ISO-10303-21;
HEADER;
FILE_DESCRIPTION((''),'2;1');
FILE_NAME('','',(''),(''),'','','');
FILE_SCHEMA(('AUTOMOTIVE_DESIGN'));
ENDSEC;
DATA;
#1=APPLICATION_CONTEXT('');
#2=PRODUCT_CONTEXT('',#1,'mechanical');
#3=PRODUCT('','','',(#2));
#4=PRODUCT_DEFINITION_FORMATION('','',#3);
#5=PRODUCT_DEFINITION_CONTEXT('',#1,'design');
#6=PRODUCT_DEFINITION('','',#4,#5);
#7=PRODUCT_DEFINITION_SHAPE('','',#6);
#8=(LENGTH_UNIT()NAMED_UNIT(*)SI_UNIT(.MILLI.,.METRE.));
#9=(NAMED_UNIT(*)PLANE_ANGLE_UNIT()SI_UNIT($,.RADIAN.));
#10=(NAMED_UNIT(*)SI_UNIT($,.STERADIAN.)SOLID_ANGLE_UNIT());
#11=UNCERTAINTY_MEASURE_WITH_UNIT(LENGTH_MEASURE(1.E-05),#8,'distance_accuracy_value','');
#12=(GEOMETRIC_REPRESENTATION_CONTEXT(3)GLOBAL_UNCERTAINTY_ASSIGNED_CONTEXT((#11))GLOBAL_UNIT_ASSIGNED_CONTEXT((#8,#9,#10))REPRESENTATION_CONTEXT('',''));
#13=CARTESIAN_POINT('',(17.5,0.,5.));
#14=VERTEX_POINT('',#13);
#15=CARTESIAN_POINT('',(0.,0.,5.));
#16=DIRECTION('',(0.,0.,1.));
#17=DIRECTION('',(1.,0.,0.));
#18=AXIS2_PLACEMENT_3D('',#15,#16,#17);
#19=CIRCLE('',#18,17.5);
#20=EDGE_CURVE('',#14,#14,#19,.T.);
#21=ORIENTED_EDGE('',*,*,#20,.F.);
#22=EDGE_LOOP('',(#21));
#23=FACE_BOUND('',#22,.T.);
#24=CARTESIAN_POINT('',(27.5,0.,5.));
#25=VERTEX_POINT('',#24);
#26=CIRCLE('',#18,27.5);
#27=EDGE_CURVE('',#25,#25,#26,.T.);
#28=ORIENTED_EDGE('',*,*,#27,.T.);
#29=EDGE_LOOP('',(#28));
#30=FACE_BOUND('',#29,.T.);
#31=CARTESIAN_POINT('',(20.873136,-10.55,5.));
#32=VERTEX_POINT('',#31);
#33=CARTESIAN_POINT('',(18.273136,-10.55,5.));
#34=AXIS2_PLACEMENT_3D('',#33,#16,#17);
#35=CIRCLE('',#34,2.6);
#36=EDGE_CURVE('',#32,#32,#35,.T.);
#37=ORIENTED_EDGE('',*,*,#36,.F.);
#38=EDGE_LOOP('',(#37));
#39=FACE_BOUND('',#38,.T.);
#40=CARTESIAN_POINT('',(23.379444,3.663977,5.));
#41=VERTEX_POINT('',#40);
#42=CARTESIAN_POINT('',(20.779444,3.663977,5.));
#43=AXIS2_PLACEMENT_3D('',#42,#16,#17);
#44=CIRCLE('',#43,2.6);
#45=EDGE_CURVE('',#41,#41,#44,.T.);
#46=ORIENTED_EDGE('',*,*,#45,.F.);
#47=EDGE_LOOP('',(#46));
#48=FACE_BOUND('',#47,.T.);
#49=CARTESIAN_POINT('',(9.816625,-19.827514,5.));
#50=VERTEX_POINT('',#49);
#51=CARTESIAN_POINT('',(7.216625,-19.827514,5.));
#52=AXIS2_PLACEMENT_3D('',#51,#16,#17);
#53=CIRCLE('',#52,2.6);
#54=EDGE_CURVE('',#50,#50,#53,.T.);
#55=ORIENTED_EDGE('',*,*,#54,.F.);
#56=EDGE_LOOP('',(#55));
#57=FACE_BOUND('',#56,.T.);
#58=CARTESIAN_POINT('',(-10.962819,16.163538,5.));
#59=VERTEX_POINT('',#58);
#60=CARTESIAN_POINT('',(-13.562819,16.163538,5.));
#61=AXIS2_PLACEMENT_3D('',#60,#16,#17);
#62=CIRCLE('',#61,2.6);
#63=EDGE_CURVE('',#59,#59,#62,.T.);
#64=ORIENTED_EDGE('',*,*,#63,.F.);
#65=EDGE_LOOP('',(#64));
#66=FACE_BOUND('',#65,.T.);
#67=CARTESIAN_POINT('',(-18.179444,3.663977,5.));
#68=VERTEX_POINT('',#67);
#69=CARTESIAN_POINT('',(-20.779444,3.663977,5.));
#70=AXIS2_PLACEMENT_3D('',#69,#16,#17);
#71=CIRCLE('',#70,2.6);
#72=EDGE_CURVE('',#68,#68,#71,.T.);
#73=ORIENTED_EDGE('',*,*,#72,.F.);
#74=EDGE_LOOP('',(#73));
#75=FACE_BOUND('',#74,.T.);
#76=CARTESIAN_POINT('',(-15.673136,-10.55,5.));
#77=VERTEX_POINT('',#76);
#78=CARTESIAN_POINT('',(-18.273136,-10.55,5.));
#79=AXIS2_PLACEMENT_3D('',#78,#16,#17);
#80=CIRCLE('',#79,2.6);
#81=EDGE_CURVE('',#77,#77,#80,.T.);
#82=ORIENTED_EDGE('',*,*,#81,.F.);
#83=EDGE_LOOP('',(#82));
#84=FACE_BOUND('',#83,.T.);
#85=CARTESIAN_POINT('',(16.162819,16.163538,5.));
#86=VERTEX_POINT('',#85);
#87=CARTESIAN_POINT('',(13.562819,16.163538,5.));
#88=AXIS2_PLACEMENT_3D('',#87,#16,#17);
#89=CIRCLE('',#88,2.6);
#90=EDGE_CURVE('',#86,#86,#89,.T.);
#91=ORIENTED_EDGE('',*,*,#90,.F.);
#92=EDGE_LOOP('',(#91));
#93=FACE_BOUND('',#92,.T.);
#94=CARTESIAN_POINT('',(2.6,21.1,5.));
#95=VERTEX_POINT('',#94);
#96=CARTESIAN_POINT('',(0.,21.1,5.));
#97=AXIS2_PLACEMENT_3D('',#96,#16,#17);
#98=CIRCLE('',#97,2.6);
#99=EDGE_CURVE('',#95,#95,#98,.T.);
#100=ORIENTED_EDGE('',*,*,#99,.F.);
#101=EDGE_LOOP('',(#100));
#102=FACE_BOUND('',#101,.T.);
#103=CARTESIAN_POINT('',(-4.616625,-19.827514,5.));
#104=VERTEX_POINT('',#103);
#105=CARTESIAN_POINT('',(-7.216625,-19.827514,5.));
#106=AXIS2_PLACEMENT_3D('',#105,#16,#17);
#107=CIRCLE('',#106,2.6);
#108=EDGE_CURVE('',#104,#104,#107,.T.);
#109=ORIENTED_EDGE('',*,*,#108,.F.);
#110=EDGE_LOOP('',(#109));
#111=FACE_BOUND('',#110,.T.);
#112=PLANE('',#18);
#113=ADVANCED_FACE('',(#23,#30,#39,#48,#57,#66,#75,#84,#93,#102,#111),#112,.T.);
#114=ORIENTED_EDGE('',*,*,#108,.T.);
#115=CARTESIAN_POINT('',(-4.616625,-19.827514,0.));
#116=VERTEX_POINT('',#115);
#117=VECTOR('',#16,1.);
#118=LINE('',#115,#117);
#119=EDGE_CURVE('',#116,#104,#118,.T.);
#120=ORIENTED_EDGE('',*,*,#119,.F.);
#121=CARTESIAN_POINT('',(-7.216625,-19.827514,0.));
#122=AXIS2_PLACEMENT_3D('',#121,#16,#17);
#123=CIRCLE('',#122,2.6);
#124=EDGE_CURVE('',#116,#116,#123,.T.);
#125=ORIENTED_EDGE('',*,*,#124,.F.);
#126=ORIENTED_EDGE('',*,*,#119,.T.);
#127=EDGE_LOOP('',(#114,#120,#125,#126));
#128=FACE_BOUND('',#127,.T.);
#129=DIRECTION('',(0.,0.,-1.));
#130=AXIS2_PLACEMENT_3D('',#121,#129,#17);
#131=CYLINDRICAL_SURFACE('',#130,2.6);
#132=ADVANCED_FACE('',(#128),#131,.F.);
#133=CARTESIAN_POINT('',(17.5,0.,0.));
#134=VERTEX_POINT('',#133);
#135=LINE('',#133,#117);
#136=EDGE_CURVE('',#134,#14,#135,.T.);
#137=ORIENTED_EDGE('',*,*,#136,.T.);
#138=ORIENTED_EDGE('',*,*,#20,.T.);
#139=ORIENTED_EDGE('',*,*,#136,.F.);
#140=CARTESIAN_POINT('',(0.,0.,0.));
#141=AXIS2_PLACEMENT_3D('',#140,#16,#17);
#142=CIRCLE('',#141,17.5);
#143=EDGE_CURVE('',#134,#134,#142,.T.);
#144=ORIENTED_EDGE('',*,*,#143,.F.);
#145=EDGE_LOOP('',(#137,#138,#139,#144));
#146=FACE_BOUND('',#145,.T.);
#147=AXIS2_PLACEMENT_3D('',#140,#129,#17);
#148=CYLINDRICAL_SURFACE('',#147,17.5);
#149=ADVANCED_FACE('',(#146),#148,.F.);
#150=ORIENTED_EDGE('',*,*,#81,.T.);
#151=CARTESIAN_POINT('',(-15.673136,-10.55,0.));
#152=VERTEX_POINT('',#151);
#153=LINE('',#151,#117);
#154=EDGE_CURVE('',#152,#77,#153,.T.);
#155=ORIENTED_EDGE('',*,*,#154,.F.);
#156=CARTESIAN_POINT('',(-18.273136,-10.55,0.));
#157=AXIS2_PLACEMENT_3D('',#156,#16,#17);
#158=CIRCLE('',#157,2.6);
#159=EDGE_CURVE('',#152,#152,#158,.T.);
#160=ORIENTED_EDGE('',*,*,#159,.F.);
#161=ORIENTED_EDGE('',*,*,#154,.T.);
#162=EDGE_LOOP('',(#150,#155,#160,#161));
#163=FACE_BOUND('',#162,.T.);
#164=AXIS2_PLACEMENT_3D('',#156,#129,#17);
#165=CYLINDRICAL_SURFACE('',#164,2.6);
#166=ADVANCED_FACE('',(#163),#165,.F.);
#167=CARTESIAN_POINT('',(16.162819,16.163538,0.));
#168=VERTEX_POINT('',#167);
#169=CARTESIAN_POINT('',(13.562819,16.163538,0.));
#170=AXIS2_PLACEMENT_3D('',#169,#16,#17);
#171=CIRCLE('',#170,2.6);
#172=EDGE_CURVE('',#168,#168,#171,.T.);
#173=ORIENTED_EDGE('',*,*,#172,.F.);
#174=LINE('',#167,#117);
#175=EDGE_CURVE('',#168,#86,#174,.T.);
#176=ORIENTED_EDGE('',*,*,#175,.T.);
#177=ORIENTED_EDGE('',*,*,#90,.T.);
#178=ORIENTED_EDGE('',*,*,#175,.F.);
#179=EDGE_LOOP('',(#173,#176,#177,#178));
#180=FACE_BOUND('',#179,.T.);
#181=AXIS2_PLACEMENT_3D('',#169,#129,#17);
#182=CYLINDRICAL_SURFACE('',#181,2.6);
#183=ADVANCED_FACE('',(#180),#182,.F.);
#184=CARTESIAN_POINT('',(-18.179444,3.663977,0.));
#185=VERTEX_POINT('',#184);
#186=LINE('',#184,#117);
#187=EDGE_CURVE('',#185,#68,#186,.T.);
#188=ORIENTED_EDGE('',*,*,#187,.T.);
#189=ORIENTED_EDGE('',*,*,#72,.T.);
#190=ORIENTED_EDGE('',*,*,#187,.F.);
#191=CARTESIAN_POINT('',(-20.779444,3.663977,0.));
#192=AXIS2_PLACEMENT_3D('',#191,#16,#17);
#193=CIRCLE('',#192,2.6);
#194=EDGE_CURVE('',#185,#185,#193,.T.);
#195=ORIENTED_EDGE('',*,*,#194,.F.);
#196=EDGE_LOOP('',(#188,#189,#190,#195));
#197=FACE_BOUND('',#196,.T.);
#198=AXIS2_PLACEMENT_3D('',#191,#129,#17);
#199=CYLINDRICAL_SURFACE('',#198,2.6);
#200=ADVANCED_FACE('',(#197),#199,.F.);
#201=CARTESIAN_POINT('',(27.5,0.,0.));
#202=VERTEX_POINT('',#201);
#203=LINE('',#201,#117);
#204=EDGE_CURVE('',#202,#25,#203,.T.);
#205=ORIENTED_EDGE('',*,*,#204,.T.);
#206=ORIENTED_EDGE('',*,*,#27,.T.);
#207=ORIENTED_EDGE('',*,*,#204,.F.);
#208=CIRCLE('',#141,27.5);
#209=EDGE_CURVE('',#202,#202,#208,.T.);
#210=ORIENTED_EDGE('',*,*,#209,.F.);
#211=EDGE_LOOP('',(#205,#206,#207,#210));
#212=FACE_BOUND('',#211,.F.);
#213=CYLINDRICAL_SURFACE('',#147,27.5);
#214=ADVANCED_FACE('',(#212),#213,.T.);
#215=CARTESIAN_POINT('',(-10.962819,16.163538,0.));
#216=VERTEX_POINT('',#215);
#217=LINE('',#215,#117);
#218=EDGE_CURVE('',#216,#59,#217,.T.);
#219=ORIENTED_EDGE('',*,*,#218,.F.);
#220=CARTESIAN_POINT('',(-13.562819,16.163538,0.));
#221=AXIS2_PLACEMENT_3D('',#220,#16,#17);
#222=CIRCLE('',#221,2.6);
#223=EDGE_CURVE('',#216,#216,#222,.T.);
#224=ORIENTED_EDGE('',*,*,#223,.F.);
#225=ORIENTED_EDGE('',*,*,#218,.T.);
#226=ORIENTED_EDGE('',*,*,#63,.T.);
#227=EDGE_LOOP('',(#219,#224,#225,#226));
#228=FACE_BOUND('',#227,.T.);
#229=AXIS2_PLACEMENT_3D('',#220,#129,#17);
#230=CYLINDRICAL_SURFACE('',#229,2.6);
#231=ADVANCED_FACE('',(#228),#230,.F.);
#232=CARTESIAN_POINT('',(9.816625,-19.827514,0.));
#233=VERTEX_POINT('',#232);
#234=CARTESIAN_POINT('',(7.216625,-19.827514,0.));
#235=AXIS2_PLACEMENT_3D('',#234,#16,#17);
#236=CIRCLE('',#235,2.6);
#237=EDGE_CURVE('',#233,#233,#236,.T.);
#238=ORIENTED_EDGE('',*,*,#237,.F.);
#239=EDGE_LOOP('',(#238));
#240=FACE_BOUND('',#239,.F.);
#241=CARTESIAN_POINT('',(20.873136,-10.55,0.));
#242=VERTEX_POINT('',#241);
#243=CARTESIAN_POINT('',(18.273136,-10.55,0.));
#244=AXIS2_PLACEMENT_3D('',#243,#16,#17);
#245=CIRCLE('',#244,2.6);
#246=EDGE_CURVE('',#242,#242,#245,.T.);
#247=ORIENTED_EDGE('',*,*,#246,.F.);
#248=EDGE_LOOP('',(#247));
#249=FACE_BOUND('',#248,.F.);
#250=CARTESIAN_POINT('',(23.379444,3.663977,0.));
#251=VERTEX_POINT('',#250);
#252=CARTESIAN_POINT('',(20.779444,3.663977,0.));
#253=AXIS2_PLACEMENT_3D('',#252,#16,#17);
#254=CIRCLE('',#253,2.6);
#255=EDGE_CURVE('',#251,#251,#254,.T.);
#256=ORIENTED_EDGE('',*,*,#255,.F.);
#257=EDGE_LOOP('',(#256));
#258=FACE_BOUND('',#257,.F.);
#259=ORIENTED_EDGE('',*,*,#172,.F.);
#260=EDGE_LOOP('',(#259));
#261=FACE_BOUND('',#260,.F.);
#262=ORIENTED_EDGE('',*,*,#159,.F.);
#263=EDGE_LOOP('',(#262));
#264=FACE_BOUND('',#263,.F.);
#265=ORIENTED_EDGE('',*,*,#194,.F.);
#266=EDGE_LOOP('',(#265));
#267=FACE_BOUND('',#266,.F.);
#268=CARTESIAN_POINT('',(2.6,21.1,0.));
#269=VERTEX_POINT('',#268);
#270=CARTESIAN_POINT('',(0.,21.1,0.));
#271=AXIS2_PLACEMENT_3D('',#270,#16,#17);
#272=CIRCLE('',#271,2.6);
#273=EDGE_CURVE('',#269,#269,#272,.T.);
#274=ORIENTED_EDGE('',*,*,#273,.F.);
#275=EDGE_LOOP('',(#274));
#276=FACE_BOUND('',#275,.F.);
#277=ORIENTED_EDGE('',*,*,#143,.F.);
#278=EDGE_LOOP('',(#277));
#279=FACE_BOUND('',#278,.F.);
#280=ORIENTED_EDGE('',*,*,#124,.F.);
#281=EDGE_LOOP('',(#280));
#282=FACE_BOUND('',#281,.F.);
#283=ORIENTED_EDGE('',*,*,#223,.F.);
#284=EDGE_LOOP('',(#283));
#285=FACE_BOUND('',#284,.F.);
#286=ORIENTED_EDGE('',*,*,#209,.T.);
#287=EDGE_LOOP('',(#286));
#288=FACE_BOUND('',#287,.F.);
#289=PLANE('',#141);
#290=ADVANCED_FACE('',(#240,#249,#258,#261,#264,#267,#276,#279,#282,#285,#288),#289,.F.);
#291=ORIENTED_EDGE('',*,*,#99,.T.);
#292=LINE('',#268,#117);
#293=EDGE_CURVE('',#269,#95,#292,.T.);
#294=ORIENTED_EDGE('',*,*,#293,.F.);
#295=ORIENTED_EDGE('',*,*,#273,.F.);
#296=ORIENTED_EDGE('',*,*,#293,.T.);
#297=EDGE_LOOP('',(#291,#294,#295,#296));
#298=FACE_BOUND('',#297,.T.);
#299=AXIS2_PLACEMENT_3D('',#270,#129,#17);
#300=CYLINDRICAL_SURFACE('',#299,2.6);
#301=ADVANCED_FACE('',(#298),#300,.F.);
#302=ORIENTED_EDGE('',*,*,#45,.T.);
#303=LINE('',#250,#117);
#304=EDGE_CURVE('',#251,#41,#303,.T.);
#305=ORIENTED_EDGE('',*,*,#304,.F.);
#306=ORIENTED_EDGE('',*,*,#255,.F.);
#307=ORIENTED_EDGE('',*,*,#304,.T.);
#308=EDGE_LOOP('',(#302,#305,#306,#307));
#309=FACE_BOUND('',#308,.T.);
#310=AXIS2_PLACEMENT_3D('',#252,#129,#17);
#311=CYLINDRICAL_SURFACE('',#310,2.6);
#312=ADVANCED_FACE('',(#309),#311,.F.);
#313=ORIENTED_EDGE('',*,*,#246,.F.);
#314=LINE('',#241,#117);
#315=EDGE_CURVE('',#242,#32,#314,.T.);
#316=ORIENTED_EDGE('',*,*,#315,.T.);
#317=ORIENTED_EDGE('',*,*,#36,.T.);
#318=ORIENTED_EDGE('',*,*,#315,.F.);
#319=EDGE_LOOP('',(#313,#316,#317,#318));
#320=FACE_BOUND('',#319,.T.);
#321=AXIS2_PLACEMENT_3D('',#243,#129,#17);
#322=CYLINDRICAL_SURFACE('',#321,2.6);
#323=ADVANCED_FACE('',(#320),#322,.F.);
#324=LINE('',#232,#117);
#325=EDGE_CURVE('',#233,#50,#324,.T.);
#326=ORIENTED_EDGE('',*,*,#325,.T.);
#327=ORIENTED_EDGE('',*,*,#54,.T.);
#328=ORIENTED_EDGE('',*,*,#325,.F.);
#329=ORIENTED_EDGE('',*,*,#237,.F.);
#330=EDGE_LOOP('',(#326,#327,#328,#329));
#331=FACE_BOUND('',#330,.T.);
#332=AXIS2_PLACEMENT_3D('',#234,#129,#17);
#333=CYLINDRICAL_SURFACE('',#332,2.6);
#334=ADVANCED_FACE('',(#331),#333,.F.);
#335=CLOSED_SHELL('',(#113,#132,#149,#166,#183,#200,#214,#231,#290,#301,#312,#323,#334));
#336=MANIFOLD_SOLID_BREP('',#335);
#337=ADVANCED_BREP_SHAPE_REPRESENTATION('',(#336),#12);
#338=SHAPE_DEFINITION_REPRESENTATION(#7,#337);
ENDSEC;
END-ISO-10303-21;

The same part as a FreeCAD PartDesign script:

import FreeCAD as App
import Part
import Sketcher
Q = App.Units.Quantity

doc = App.newDocument("Part")
body = doc.addObject("PartDesign::Body", "Body")

# Sketch on XY plane
sketch1 = doc.addObject("Sketcher::SketchObject", "Sketch")
body.addObject(sketch1)
sketch1.AttachmentSupport = (doc.XY_Plane, [""])
sketch1.MapMode = "FlatFace"
sketch1.addGeometry([
    Part.Circle(App.Vector(0, 0, 0), App.Vector(0, 0, 1), 27.5),  # 0
    Part.Circle(App.Vector(-7.2, -19.8, 0), App.Vector(0, 0, 1), 2.6),  # 1
    Part.Circle(App.Vector(-18.3, -10.6, 0), App.Vector(0, 0, 1), 2.6),  # 2
    Part.Circle(App.Vector(7.2, -19.8, 0), App.Vector(0, 0, 1), 2.6),  # 3
    Part.Circle(App.Vector(0, 0, 0), App.Vector(0, 0, 1), 17.5),  # 4
    Part.Circle(App.Vector(18.3, -10.6, 0), App.Vector(0, 0, 1), 2.6),  # 5
    Part.Circle(App.Vector(-20.8, 3.7, 0), App.Vector(0, 0, 1), 2.6),  # 6
    Part.Circle(App.Vector(-13.6, 16.2, 0), App.Vector(0, 0, 1), 2.6),  # 7
    Part.Circle(App.Vector(20.8, 3.7, 0), App.Vector(0, 0, 1), 2.6),  # 8
    Part.Circle(App.Vector(0, 21.1, 0), App.Vector(0, 0, 1), 2.6),  # 9
    Part.Circle(App.Vector(13.6, 16.2, 0), App.Vector(0, 0, 1), 2.6),  # 10
], False)
sketch1.addConstraint([
    Sketcher.Constraint("Coincident", 0, 3, -1, 1),
    Sketcher.Constraint("Coincident", 4, 3, -1, 1),
    Sketcher.Constraint("Equal", 1, 2),
    Sketcher.Constraint("Equal", 2, 3),
    Sketcher.Constraint("Equal", 3, 5),
    Sketcher.Constraint("Equal", 5, 6),
    Sketcher.Constraint("Equal", 6, 7),
    Sketcher.Constraint("Equal", 7, 8),
    Sketcher.Constraint("Equal", 8, 9),
    Sketcher.Constraint("Equal", 9, 10),
    Sketcher.Constraint("Symmetric", 1, 3, 3, 3, -2),
    Sketcher.Constraint("Symmetric", 2, 3, 5, 3, -2),
    Sketcher.Constraint("Symmetric", 6, 3, 8, 3, -2),
    Sketcher.Constraint("Symmetric", 7, 3, 10, 3, -2),
    Sketcher.Constraint("PointOnObject", 9, 3, -2),
    Sketcher.Constraint("Diameter", 0, Q("55 mm")),
    Sketcher.Constraint("Diameter", 4, Q("35 mm")),
    Sketcher.Constraint("Diameter", 1, Q("5.2 mm")),
    Sketcher.Constraint("DistanceY", -1, 1, 9, 3, Q("21.1 mm")),
    Sketcher.Constraint("DistanceY", 2, 3, -1, 1, Q("10.55 mm")),
    Sketcher.Constraint("DistanceX", 7, 3, -1, 1, Q("13.562819 mm")),
    Sketcher.Constraint("DistanceX", 2, 3, 1, 3, Q("11.056511 mm")),
    Sketcher.Constraint("DistanceX", 1, 3, 3, 3, Q("14.43325 mm")),
    Sketcher.Constraint("DistanceX", 6, 3, 2, 3, Q("2.506308 mm")),
    Sketcher.Constraint("DistanceY", 1, 3, 6, 3, Q("23.491491 mm")),
    Sketcher.Constraint("DistanceY", 6, 3, 7, 3, Q("12.499561 mm")),
    Sketcher.Constraint("DistanceY", 2, 3, 7, 3, Q("26.713538 mm")),
])
pad1 = doc.addObject("PartDesign::Pad", "Pad")
body.addObject(pad1)
pad1.Profile = sketch1
pad1.Length = 5

doc.recompute()
